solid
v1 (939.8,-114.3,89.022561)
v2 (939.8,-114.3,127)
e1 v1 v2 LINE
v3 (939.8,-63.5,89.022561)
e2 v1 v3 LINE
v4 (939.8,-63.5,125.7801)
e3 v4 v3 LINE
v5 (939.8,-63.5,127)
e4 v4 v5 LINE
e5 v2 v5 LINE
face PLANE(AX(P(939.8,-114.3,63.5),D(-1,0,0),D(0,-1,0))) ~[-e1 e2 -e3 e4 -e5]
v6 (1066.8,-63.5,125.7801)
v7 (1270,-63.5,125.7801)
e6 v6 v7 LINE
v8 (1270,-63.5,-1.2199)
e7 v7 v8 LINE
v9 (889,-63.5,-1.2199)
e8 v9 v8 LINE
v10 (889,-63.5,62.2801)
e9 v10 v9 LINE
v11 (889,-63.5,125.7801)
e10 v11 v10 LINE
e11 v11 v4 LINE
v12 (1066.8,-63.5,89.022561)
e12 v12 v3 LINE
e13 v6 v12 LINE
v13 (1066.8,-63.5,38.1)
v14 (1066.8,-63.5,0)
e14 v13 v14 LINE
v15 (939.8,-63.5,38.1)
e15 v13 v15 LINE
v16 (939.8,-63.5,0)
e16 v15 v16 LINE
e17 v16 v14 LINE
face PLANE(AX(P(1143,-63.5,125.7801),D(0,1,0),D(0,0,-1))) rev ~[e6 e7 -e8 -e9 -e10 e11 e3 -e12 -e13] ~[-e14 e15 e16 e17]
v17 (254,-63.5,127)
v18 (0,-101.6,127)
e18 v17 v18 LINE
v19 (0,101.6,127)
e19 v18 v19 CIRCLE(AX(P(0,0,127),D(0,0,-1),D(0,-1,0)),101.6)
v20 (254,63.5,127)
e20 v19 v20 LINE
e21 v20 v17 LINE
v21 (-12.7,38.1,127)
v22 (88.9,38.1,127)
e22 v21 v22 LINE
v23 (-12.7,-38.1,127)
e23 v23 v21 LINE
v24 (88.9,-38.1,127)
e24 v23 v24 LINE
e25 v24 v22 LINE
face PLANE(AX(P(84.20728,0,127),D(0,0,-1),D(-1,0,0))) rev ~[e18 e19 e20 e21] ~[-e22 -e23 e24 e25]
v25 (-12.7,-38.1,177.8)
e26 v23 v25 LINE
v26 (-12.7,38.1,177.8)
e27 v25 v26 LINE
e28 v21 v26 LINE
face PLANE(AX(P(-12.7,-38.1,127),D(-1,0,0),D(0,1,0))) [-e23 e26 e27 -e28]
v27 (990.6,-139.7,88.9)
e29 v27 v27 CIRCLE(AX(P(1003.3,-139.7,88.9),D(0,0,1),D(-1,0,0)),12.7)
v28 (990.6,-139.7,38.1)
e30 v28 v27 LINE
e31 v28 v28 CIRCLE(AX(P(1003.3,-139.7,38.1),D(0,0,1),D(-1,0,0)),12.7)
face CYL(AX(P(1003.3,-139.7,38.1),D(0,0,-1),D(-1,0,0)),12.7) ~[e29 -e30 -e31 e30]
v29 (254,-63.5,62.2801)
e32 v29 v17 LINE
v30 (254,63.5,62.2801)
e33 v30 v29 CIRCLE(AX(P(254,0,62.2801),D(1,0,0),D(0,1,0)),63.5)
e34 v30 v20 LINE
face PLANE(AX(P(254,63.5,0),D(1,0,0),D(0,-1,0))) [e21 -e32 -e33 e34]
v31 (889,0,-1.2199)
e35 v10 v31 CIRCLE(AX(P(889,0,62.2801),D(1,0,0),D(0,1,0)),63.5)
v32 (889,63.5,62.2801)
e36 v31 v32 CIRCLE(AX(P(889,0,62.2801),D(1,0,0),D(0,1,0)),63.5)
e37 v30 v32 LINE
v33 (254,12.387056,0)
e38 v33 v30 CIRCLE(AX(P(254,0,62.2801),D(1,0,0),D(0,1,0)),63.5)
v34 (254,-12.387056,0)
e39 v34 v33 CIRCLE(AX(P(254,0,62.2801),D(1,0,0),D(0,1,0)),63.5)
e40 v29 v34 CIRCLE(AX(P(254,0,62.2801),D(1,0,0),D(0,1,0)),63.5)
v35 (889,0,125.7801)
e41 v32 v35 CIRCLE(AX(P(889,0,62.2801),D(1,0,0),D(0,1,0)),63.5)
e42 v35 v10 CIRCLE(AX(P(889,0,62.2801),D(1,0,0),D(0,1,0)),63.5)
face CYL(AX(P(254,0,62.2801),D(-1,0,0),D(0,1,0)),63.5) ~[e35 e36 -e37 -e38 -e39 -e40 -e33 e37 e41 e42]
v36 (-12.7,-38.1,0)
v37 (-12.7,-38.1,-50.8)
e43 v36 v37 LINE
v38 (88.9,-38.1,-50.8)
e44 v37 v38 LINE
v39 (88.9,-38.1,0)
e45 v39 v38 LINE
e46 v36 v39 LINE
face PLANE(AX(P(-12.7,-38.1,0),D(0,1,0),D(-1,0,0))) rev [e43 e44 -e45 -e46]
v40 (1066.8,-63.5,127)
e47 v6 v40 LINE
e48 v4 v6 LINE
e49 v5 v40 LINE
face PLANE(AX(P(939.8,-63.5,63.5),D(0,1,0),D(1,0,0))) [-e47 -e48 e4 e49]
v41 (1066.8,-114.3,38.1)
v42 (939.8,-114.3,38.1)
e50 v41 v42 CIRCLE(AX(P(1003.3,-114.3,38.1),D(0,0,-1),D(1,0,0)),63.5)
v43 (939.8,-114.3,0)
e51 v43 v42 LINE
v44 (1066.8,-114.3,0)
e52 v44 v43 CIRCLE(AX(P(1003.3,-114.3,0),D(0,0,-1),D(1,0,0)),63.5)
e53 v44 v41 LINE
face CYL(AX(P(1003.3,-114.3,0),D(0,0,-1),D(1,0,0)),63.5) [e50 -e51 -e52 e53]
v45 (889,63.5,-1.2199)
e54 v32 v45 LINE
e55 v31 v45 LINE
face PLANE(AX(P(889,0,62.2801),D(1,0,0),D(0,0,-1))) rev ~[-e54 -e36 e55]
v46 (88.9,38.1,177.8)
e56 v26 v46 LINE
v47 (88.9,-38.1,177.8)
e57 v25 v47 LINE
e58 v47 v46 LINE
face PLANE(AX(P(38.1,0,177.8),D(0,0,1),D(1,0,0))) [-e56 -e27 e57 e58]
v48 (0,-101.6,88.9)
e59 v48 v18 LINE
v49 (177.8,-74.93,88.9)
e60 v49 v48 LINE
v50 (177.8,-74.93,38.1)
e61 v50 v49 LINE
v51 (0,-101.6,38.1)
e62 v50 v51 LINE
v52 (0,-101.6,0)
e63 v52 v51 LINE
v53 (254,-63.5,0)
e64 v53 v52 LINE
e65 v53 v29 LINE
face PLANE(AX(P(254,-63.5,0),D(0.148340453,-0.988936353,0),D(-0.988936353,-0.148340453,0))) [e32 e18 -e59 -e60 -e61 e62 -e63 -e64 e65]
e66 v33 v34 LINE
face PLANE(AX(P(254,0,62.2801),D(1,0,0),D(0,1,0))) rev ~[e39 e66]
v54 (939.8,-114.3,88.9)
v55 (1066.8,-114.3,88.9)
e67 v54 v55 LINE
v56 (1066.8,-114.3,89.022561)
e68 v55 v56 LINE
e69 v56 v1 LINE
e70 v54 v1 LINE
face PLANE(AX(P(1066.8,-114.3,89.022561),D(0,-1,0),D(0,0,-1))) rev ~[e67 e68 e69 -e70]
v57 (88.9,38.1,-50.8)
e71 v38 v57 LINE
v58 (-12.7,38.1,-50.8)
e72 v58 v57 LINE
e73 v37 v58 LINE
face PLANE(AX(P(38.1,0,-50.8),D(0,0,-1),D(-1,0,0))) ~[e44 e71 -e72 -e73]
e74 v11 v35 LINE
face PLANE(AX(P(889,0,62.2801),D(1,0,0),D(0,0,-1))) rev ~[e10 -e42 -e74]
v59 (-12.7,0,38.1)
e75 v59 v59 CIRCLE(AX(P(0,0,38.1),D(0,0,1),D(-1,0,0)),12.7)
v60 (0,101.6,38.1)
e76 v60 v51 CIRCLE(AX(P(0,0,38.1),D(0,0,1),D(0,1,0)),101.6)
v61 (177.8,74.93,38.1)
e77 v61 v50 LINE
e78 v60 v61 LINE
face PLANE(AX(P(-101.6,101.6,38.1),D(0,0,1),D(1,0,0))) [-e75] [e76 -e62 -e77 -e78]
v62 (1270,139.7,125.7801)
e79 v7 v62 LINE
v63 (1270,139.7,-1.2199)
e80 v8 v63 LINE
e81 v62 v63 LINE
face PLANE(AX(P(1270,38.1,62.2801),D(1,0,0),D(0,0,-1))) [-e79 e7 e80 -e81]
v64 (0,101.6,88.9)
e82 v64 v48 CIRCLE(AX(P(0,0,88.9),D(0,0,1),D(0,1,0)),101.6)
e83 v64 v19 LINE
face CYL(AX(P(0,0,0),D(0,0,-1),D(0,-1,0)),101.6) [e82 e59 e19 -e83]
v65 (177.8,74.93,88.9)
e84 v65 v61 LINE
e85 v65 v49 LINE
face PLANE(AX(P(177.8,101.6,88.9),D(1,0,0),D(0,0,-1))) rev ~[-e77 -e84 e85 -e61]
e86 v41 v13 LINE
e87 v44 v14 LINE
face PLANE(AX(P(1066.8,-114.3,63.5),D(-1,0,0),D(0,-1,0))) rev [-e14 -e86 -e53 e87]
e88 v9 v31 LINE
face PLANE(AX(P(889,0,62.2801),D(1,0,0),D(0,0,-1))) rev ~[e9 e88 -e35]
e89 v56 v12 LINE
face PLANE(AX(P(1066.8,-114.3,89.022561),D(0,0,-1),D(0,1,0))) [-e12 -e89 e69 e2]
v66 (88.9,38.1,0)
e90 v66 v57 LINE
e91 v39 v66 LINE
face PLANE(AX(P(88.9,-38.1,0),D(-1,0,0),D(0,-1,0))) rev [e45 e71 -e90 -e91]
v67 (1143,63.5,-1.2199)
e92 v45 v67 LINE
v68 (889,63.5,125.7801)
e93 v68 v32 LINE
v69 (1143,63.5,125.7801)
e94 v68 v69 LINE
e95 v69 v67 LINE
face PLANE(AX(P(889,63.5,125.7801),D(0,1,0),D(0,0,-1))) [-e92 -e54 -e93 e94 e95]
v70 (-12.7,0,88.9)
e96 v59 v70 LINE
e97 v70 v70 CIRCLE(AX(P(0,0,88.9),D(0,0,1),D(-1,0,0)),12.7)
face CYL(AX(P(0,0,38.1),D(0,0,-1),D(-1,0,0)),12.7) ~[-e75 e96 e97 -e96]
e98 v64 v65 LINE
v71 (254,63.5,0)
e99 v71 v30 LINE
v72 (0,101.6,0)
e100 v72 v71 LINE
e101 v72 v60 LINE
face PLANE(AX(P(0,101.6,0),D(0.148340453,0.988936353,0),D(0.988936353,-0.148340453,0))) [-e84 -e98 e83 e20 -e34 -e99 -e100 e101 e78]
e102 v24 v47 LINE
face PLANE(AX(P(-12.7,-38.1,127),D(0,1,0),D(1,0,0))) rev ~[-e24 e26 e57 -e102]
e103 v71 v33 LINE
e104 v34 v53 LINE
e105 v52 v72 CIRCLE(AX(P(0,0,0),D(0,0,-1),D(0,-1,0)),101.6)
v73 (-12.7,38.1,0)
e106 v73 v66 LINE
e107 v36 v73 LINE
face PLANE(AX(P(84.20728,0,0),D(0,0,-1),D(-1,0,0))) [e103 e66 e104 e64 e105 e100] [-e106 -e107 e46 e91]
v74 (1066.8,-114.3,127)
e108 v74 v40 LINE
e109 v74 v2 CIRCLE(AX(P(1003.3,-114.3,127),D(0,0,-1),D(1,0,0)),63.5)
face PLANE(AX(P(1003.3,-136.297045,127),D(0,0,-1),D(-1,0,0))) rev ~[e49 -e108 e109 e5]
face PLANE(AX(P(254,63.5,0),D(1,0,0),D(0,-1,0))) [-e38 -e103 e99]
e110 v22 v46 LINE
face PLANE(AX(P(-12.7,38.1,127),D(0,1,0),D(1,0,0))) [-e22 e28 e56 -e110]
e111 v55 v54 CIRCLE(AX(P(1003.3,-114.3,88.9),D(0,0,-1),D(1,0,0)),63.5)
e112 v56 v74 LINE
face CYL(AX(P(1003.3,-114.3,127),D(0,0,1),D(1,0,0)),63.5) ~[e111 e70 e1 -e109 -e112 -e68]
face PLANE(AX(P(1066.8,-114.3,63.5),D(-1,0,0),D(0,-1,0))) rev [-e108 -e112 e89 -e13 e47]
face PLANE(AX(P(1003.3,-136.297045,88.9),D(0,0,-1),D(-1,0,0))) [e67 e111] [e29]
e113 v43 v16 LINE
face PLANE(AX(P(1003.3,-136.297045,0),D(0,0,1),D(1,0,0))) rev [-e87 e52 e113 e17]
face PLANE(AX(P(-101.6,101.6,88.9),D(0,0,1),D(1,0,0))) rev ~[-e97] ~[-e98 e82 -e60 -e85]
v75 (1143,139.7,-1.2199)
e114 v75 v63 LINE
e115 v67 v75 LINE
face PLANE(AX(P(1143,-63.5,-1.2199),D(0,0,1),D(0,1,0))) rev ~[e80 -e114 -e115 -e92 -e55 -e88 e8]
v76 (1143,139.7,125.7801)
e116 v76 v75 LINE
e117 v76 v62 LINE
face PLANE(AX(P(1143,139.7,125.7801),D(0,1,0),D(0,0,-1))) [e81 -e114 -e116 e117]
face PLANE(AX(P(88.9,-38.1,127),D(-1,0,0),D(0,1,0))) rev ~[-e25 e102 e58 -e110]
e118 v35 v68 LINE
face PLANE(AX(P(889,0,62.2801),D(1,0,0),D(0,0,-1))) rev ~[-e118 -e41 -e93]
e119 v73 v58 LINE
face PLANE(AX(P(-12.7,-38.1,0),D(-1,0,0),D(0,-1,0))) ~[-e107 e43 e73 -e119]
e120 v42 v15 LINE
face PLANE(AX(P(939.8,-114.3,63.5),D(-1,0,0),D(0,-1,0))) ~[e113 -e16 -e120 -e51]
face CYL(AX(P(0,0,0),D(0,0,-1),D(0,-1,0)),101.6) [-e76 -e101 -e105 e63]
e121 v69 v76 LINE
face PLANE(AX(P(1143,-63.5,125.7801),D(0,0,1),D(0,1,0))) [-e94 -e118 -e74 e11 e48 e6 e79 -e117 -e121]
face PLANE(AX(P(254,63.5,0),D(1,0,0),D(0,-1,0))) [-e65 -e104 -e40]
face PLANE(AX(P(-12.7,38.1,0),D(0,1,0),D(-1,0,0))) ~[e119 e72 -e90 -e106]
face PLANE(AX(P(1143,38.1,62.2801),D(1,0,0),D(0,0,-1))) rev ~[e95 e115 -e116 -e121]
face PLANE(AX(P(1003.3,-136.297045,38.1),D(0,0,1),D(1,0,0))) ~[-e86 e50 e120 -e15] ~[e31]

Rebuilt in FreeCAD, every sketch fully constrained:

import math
import FreeCAD as App
import Part
import Sketcher
from FreeCAD import Vector
Q = App.Units.Quantity


def add_polygon(sketch, points):
    """Adds a closed chain of lines whose ends are joined by coincident constraints."""
    first, n = sketch.GeometryCount, len(points)
    for a, b in zip(points, points[1:] + points[:1]):
        sketch.addGeometry(Part.LineSegment(App.Vector(*a, 0), App.Vector(*b, 0)), False)
    for i in range(n):
        sketch.addConstraint(Sketcher.Constraint("Coincident", first + i, 2, first + (i + 1) % n, 1))

doc = App.newDocument("Part")
params = doc.addObject("Spreadsheet::Sheet", "Params")
for row, (alias, value) in enumerate([
    ("sketch1_radius", "4 in"),
    ("sketch1_height", "5 in"),
    ("pad1_length", "5 in"),
    ("sketch2_width", "11 in"),
    ("sketch2_height", "2 in"),
    ("sketch3_diameter", "5 in"),
    ("pad2_length", "25 in"),
    ("sketch4_width", "4 in"),
    ("sketch4_height", "3 in"),
    ("pad3_length", "2 in"),
    ("sketch5_width", "5 in"),
    ("pad4_length", "10 in"),
    ("sketch6_width", "8 in"),
    ("sketch6_height", "5 in"),
    ("pad5_length", "5 in"),
    ("sketch7_width", "5 in"),
    ("sketch7_height", "2 in"),
    ("pad6_length", "2.5 in"),
    ("sketch8_radius", "2.5 in"),
    ("pad7_length", "1.5 in"),
    ("sketch9_diameter", "1 in"),
    ("pad8_length", "2 in"),
    ("sketch10_diameter", "1 in"),
    ("pad9_length", "2 in"),
    ("sketch11_width", "2 in"),
    ("pocket2_length", "10.67 in"),
], start=1):
    params.set(f"A{row}", alias)
    params.set(f"B{row}", "=" + value)
    params.setAlias(f"B{row}", alias)

body = doc.addObject("PartDesign::Body", "Body")

# Sketch on XY plane
sketch1 = body.newObject("Sketcher::SketchObject", "Sketch")
sketch1.AttachmentSupport = (doc.getObject("XY_Plane"), [""])
sketch1.MapMode = "FlatFace"
sketch1.addGeometry(Part.LineSegment(Vector(254, 63.5, 0), Vector(0, 101.6, 0)), False)
sketch1.addGeometry(Part.ArcOfCircle(Part.Circle(Vector(0, 0, 0), Vector(0, 0, 1), 101.6), math.radians(90), math.radians(270)), False)
sketch1.addGeometry(Part.LineSegment(Vector(0, -101.6, 0), Vector(254, -63.5, 0)), False)
sketch1.addGeometry(Part.LineSegment(Vector(254, -63.5, 0), Vector(254, 63.5, 0)), False)
sketch1.addConstraint(Sketcher.Constraint("Coincident", 0, 2, 1, 1))
sketch1.addConstraint(Sketcher.Constraint("Coincident", 1, 2, 2, 1))
sketch1.addConstraint(Sketcher.Constraint("Coincident", 2, 2, 3, 1))
sketch1.addConstraint(Sketcher.Constraint("Coincident", 3, 2, 0, 1))
sketch1.addConstraint(Sketcher.Constraint("Vertical", 3))
sketch1.addConstraint(Sketcher.Constraint("Coincident", 1, 3, -1, 1))
sketch1.addConstraint(Sketcher.Constraint("PointOnObject", 0, 2, -2))
sketch1.addConstraint(Sketcher.Constraint("PointOnObject", 1, 2, -2))
sketch1.addConstraint(Sketcher.Constraint("Equal", 0, 2))
sketch1.addConstraint(Sketcher.Constraint("Radius", 1, Q("4 in")))
sketch1.addConstraint(Sketcher.Constraint("DistanceY", 3, 1, 3, 2, Q("5 in")))
sketch1.addConstraint(Sketcher.Constraint("DistanceX", -1, 1, 2, 2, Q("10 in")))
sketch1.setExpression("Constraints[9]", "Params.sketch1_radius")
sketch1.setExpression("Constraints[10]", "Params.sketch1_height")
pad1 = body.newObject("PartDesign::Pad", "Pad")
pad1.Profile = sketch1
pad1.setExpression("Length", "Params.pad1_length")

# Sketch on XZ plane
sketch2 = body.newObject("Sketcher::SketchObject", "Sketch001")
sketch2.AttachmentSupport = (doc.getObject("XZ_Plane"), [""])
sketch2.MapMode = "FlatFace"
sketch2.AttachmentOffset = App.Placement(Vector(0, 0, -4 * 25.4), App.Rotation())
add_polygon(sketch2, [(-101.6, 38.1), (-101.6, 88.9), (177.8, 88.9), (177.8, 38.1)])  # lines 0-3
sketch2.addConstraint(Sketcher.Constraint("Vertical", 0))
sketch2.addConstraint(Sketcher.Constraint("Horizontal", 1))
sketch2.addConstraint(Sketcher.Constraint("Vertical", 2))
sketch2.addConstraint(Sketcher.Constraint("Horizontal", 3))
sketch2.addConstraint(Sketcher.Constraint("DistanceX", 1, 1, 1, 2, Q("11 in")))
sketch2.addConstraint(Sketcher.Constraint("DistanceY", 0, 1, 0, 2, Q("2 in")))
sketch2.addConstraint(Sketcher.Constraint("DistanceX", 0, 2, -1, 1, Q("4 in")))
sketch2.addConstraint(Sketcher.Constraint("DistanceY", -1, 1, 0, 2, Q("3.5 in")))
sketch2.setExpression("Constraints[8]", "Params.sketch2_width")
sketch2.setExpression("Constraints[9]", "Params.sketch2_height")
pocket1 = body.newObject("PartDesign::Pocket", "Pocket")
pocket1.Profile = sketch2
pocket1.Type = "ThroughAll"
pocket1.Reversed = True

# Sketch on YZ plane
sketch3 = body.newObject("Sketcher::SketchObject", "Sketch002")
sketch3.AttachmentSupport = (doc.getObject("YZ_Plane"), [""])
sketch3.MapMode = "FlatFace"
sketch3.AttachmentOffset = App.Placement(Vector(0, 0, 10 * 25.4), App.Rotation())
sketch3.addGeometry(Part.Circle(Vector(0, 62.2801, 0), Vector(0, 0, 1), 63.5), False)
sketch3.addConstraint(Sketcher.Constraint("PointOnObject", 0, 3, -2))
sketch3.addConstraint(Sketcher.Constraint("Diameter", 0, Q("5 in")))
sketch3.addConstraint(Sketcher.Constraint("DistanceY", -1, 1, 0, 3, Q("62.2801 mm")))
sketch3.setExpression("Constraints[1]", "Params.sketch3_diameter")
pad2 = body.newObject("PartDesign::Pad", "Pad001")
pad2.Profile = sketch3
pad2.setExpression("Length", "Params.pad2_length")

# Sketch on XY plane
sketch4 = body.newObject("Sketcher::SketchObject", "Sketch003")
sketch4.AttachmentSupport = (doc.getObject("XY_Plane"), [""])
sketch4.MapMode = "FlatFace"
sketch4.AttachmentOffset = App.Placement(Vector(0, 0, 5 * 25.4), App.Rotation())
add_polygon(sketch4, [(-12.7, 38.1), (-12.7, -38.1), (88.9, -38.1), (88.9, 38.1)])  # lines 0-3
sketch4.addConstraint(Sketcher.Constraint("Vertical", 0))
sketch4.addConstraint(Sketcher.Constraint("Horizontal", 1))
sketch4.addConstraint(Sketcher.Constraint("Vertical", 2))
sketch4.addConstraint(Sketcher.Constraint("Horizontal", 3))
sketch4.addConstraint(Sketcher.Constraint("DistanceX", 1, 1, 1, 2, Q("4 in")))
sketch4.addConstraint(Sketcher.Constraint("DistanceY", 0, 2, 0, 1, Q("3 in")))
sketch4.addConstraint(Sketcher.Constraint("DistanceX", 0, 2, -1, 1, Q("0.5 in")))
sketch4.addConstraint(Sketcher.Constraint("DistanceY", 0, 2, -1, 1, Q("1.5 in")))
sketch4.setExpression("Constraints[8]", "Params.sketch4_width")
sketch4.setExpression("Constraints[9]", "Params.sketch4_height")
pad3 = body.newObject("PartDesign::Pad", "Pad002")
pad3.Profile = sketch4
pad3.setExpression("Length", "Params.pad3_length")
doc.recompute()

datumplane = body.newObject("PartDesign::Plane", "DatumPlane")
datumplane.AttachmentSupport = (doc.getObject("XY_Plane"), [""])
datumplane.MapMode = "FlatFace"
datumplane.AttachmentOffset = App.Placement(Vector(0, 0, 2.5 * 25.4), App.Rotation())
mirrored = body.newObject("PartDesign::Mirrored", "Mirrored")
mirrored.Originals = [pad3]
mirrored.MirrorPlane = (datumplane, [""])
body.Tip = mirrored

# Sketch on YZ plane
sketch5 = body.newObject("Sketcher::SketchObject", "Sketch004")
sketch5.AttachmentSupport = (doc.getObject("YZ_Plane"), [""])
sketch5.MapMode = "FlatFace"
sketch5.AttachmentOffset = App.Placement(Vector(0, 0, 35 * 25.4), App.Rotation())
add_polygon(sketch5, [(63.5, 125.7801), (-63.5, 125.7801), (-63.5, -1.2199), (63.5, -1.2199)])  # lines 0-3
sketch5.addConstraint(Sketcher.Constraint("Horizontal", 0))
sketch5.addConstraint(Sketcher.Constraint("Vertical", 1))
sketch5.addConstraint(Sketcher.Constraint("Horizontal", 2))
sketch5.addConstraint(Sketcher.Constraint("Vertical", 3))
sketch5.addConstraint(Sketcher.Constraint("Equal", 2, 1))
sketch5.addConstraint(Sketcher.Constraint("DistanceX", 0, 2, 0, 1, Q("5 in")))
sketch5.addConstraint(Sketcher.Constraint("DistanceX", 0, 2, -1, 1, Q("2.5 in")))
sketch5.addConstraint(Sketcher.Constraint("DistanceY", -1, 1, 0, 2, Q("125.7801 mm")))
sketch5.setExpression("Constraints[9]", "Params.sketch5_width")
pad4 = body.newObject("PartDesign::Pad", "Pad003")
pad4.Profile = sketch5
pad4.setExpression("Length", "Params.pad4_length")

# Sketch on YZ plane
sketch6 = body.newObject("Sketcher::SketchObject", "Sketch005")
sketch6.AttachmentSupport = (doc.getObject("YZ_Plane"), [""])
sketch6.MapMode = "FlatFace"
sketch6.AttachmentOffset = App.Placement(Vector(0, 0, 45 * 25.4), App.Rotation())
add_polygon(sketch6, [(139.7, 125.7801), (-63.5, 125.7801), (-63.5, -1.2199), (139.7, -1.2199)])  # lines 0-3
sketch6.addConstraint(Sketcher.Constraint("Horizontal", 0))
sketch6.addConstraint(Sketcher.Constraint("Vertical", 1))
sketch6.addConstraint(Sketcher.Constraint("Horizontal", 2))
sketch6.addConstraint(Sketcher.Constraint("Vertical", 3))
sketch6.addConstraint(Sketcher.Constraint("DistanceX", 0, 2, 0, 1, Q("8 in")))
sketch6.addConstraint(Sketcher.Constraint("DistanceY", 1, 2, 1, 1, Q("5 in")))
sketch6.addConstraint(Sketcher.Constraint("DistanceX", 0, 2, -1, 1, Q("2.5 in")))
sketch6.addConstraint(Sketcher.Constraint("DistanceY", -1, 1, 0, 2, Q("125.7801 mm")))
sketch6.setExpression("Constraints[8]", "Params.sketch6_width")
sketch6.setExpression("Constraints[9]", "Params.sketch6_height")
pad5 = body.newObject("PartDesign::Pad", "Pad004")
pad5.Profile = sketch6
pad5.setExpression("Length", "Params.pad5_length")

# Sketch on XY plane
sketch7 = body.newObject("Sketcher::SketchObject", "Sketch006")
sketch7.AttachmentSupport = (doc.getObject("XY_Plane"), [""])
sketch7.MapMode = "FlatFace"
sketch7.AttachmentOffset = App.Placement(Vector(0, 0, 2.5 * 25.4), App.Rotation())
add_polygon(sketch7, [(939.8, -63.5), (939.8, -114.3), (1066.8, -114.3), (1066.8, -63.5)])  # lines 0-3
sketch7.addConstraint(Sketcher.Constraint("Vertical", 0))
sketch7.addConstraint(Sketcher.Constraint("Horizontal", 1))
sketch7.addConstraint(Sketcher.Constraint("Vertical", 2))
sketch7.addConstraint(Sketcher.Constraint("Horizontal", 3))
sketch7.addConstraint(Sketcher.Constraint("DistanceX", 1, 1, 1, 2, Q("5 in")))
sketch7.addConstraint(Sketcher.Constraint("DistanceY", 0, 2, 0, 1, Q("2 in")))
sketch7.addConstraint(Sketcher.Constraint("DistanceX", -1, 1, 0, 2, Q("37 in")))
sketch7.addConstraint(Sketcher.Constraint("DistanceY", 0, 2, -1, 1, Q("4.5 in")))
sketch7.setExpression("Constraints[8]", "Params.sketch7_width")
sketch7.setExpression("Constraints[9]", "Params.sketch7_height")
pad6 = body.newObject("PartDesign::Pad", "Pad005")
pad6.Profile = sketch7
pad6.setExpression("Length", "Params.pad6_length")

# Sketch on XY plane
sketch8 = body.newObject("Sketcher::SketchObject", "Sketch007")
sketch8.AttachmentSupport = (doc.getObject("XY_Plane"), [""])
sketch8.MapMode = "FlatFace"
sketch8.AttachmentOffset = App.Placement(Vector(0, 0, 5 * 25.4), App.Rotation())
sketch8.addGeometry(Part.LineSegment(Vector(1066.8, -114.3, 0), Vector(939.8, -114.3, 0)), False)
sketch8.addGeometry(Part.ArcOfCircle(Part.Circle(Vector(1003.3, -114.3, 0), Vector(0, 0, 1), 63.5), math.radians(180), math.radians(360)), False)
sketch8.addConstraint(Sketcher.Constraint("Coincident", 0, 1, 1, 2))
sketch8.addConstraint(Sketcher.Constraint("Coincident", 1, 1, 0, 2))
sketch8.addConstraint(Sketcher.Constraint("Horizontal", 0))
sketch8.addConstraint(Sketcher.Constraint("Horizontal", 1, 3, 0, 1))
sketch8.addConstraint(Sketcher.Constraint("Radius", 1, Q("2.5 in")))
sketch8.addConstraint(Sketcher.Constraint("DistanceX", -1, 1, 0, 1, Q("42 in")))
sketch8.addConstraint(Sketcher.Constraint("DistanceY", 1, 3, -1, 1, Q("4.5 in")))
sketch8.setExpression("Constraints[4]", "Params.sketch8_radius")
pad7 = body.newObject("PartDesign::Pad", "Pad006")
pad7.Profile = sketch8
pad7.setExpression("Length", "Params.pad7_length")
pad7.Reversed = True
doc.recompute()

datumplane2 = body.newObject("PartDesign::Plane", "DatumPlane001")
datumplane2.AttachmentSupport = (doc.getObject("XY_Plane"), [""])
datumplane2.MapMode = "FlatFace"
datumplane2.AttachmentOffset = App.Placement(Vector(0, 0, 2.5 * 25.4), App.Rotation())
mirrored2 = body.newObject("PartDesign::Mirrored", "Mirrored001")
mirrored2.Originals = [pad6, pad7]
mirrored2.MirrorPlane = (datumplane2, [""])
body.Tip = mirrored2

# Sketch on XY plane
sketch9 = body.newObject("Sketcher::SketchObject", "Sketch008")
sketch9.AttachmentSupport = (doc.getObject("XY_Plane"), [""])
sketch9.MapMode = "FlatFace"
sketch9.AttachmentOffset = App.Placement(Vector(0, 0, 1.5 * 25.4), App.Rotation())
sketch9.addGeometry(Part.Circle(Vector(0, 0, 0), Vector(0, 0, 1), 12.7), False)
sketch9.addConstraint(Sketcher.Constraint("Coincident", 0, 3, -1, 1))
sketch9.addConstraint(Sketcher.Constraint("Diameter", 0, Q("1 in")))
sketch9.setExpression("Constraints[1]", "Params.sketch9_diameter")
pad8 = body.newObject("PartDesign::Pad", "Pad007")
pad8.Profile = sketch9
pad8.setExpression("Length", "Params.pad8_length")

# Sketch on XY plane
sketch10 = body.newObject("Sketcher::SketchObject", "Sketch009")
sketch10.AttachmentSupport = (doc.getObject("XY_Plane"), [""])
sketch10.MapMode = "FlatFace"
sketch10.AttachmentOffset = App.Placement(Vector(0, 0, 1.5 * 25.4), App.Rotation())
sketch10.addGeometry(Part.Circle(Vector(1003.3, -139.7, 0), Vector(0, 0, 1), 12.7), False)
sketch10.addConstraint(Sketcher.Constraint("Diameter", 0, Q("1 in")))
sketch10.addConstraint(Sketcher.Constraint("DistanceX", -1, 1, 0, 3, Q("39.5 in")))
sketch10.addConstraint(Sketcher.Constraint("DistanceY", 0, 3, -1, 1, Q("5.5 in")))
sketch10.setExpression("Constraints[0]", "Params.sketch10_diameter")
pad9 = body.newObject("PartDesign::Pad", "Pad008")
pad9.Profile = sketch10
pad9.setExpression("Length", "Params.pad9_length")

# Sketch on YZ plane
sketch11 = body.newObject("Sketcher::SketchObject", "Sketch010")
sketch11.AttachmentSupport = (doc.getObject("YZ_Plane"), [""])
sketch11.MapMode = "FlatFace"
sketch11.AttachmentOffset = App.Placement(Vector(0, 0, 42 * 25.4), App.Rotation())
add_polygon(sketch11, [(-63.5, 89.022561), (-114.3, 89.022561), (-114.3, 38.1), (-63.5, 38.1)])  # lines 0-3
sketch11.addConstraint(Sketcher.Constraint("Horizontal", 0))
sketch11.addConstraint(Sketcher.Constraint("Vertical", 1))
sketch11.addConstraint(Sketcher.Constraint("Horizontal", 2))
sketch11.addConstraint(Sketcher.Constraint("Vertical", 3))
sketch11.addConstraint(Sketcher.Constraint("DistanceX", 0, 2, 0, 1, Q("2 in")))
sketch11.addConstraint(Sketcher.Constraint("DistanceX", 0, 2, -1, 1, Q("4.5 in")))
sketch11.addConstraint(Sketcher.Constraint("DistanceY", -1, 1, 1, 2, Q("1.5 in")))
sketch11.addConstraint(Sketcher.Constraint("DistanceY", 1, 2, 1, 1, Q("50.922561 mm")))
sketch11.setExpression("Constraints[8]", "Params.sketch11_width")
pocket2 = body.newObject("PartDesign::Pocket", "Pocket001")
pocket2.Profile = sketch11
pocket2.setExpression("Length", "Params.pocket2_length")

doc.recompute()
